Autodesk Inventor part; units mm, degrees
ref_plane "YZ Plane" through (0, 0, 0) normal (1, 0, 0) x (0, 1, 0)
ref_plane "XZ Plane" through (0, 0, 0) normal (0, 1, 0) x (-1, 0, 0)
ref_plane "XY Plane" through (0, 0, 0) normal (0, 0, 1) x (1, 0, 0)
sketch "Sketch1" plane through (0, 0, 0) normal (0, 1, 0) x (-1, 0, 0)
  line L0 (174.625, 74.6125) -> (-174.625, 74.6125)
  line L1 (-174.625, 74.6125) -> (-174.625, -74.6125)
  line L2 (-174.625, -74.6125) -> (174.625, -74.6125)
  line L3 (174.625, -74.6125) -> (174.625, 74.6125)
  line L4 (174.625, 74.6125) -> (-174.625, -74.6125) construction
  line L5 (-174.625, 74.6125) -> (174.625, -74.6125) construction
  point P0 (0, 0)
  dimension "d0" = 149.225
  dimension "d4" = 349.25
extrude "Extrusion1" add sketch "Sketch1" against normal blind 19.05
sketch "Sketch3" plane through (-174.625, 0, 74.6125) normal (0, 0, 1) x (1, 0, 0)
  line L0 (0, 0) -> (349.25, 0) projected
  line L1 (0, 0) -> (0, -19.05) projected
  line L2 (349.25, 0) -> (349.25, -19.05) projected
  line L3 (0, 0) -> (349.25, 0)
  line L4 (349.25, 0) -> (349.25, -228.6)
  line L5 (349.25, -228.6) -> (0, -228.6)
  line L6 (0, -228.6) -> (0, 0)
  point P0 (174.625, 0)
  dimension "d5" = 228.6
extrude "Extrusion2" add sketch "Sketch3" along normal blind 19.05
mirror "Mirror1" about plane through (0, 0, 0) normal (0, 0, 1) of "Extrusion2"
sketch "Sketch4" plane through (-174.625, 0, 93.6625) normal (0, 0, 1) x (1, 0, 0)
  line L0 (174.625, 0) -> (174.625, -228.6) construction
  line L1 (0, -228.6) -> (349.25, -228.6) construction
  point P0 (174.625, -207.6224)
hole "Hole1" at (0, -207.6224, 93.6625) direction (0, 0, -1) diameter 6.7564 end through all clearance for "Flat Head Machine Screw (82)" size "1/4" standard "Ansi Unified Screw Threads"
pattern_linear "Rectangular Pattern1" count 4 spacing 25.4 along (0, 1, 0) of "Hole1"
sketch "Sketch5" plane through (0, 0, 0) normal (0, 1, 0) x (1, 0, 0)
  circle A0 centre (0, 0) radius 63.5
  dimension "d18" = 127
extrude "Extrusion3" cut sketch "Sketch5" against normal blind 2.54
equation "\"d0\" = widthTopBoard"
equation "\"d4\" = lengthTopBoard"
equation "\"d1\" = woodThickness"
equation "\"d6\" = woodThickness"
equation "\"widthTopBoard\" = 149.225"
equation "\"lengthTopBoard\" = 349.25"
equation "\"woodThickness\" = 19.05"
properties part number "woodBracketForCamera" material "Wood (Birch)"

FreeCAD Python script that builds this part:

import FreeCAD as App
import Part
import Sketcher
from FreeCAD import Vector
Q = App.Units.Quantity

doc = App.newDocument("Part")
body = doc.addObject("PartDesign::Body", "Body")

sketch1 = doc.addObject("Sketcher::SketchObject", "Sketch")
body.addObject(sketch1)
sketch1.AttachmentSupport = (doc.XZ_Plane, [""])
sketch1.MapMode = "FlatFace"
sketch1.addGeometry([
    Part.LineSegment(Vector(-174.625, -74.6125, 0), Vector(-174.625, 74.6125, 0)),
    Part.LineSegment(Vector(-174.625, 74.6125, 0), Vector(174.625, 74.6125, 0)),
    Part.LineSegment(Vector(174.625, 74.6125, 0), Vector(174.625, -74.6125, 0)),
    Part.LineSegment(Vector(174.625, -74.6125, 0), Vector(-174.625, -74.6125, 0)),
], False)
sketch1.addConstraint([
    Sketcher.Constraint("Coincident", 0, 2, 1, 1),
    Sketcher.Constraint("Coincident", 1, 2, 2, 1),
    Sketcher.Constraint("Coincident", 2, 2, 3, 1),
    Sketcher.Constraint("Coincident", 3, 2, 0, 1),
    Sketcher.Constraint("Vertical", 0),
    Sketcher.Constraint("Horizontal", 1),
    Sketcher.Constraint("Vertical", 2),
    Sketcher.Constraint("Horizontal", 3),
    Sketcher.Constraint("Symmetric", 0, 2, 2, 2, -1, 1),
    Sketcher.Constraint("DistanceX", 1, 1, 1, 2, Q("13.75 in")),
    Sketcher.Constraint("DistanceY", 0, 1, 0, 2, Q("5.875 in")),
])
pad1 = doc.addObject("PartDesign::Pad", "Pad")
body.addObject(pad1)
pad1.Profile = sketch1
pad1.Length = Q("0.75 in")

sketch2 = doc.addObject("Sketcher::SketchObject", "Sketch001")
body.addObject(sketch2)
sketch2.AttachmentSupport = (doc.XY_Plane, [""])
sketch2.MapMode = "FlatFace"
sketch2.AttachmentOffset = App.Placement(Vector(0, 0, 2.9375 * 25.4), App.Rotation())
sketch2.addGeometry([
    Part.LineSegment(Vector(174.625, 0, 0), Vector(-174.625, 0, 0)),
    Part.LineSegment(Vector(-174.625, 0, 0), Vector(-174.625, -228.6, 0)),
    Part.LineSegment(Vector(-174.625, -228.6, 0), Vector(174.625, -228.6, 0)),
    Part.LineSegment(Vector(174.625, -228.6, 0), Vector(174.625, 0, 0)),
], False)
sketch2.addConstraint([
    Sketcher.Constraint("Coincident", 0, 2, 1, 1),
    Sketcher.Constraint("Coincident", 1, 2, 2, 1),
    Sketcher.Constraint("Coincident", 2, 2, 3, 1),
    Sketcher.Constraint("Coincident", 3, 2, 0, 1),
    Sketcher.Constraint("Horizontal", 0),
    Sketcher.Constraint("Vertical", 1),
    Sketcher.Constraint("Horizontal", 2),
    Sketcher.Constraint("Vertical", 3),
    Sketcher.Constraint("Symmetric", 0, 2, 3, 2, -1, 1),
    Sketcher.Constraint("DistanceY", 1, 2, 1, 1, Q("9 in")),
    Sketcher.Constraint("DistanceX", 0, 2, 0, 1, Q("13.75 in")),
])
pad2 = doc.addObject("PartDesign::Pad", "Pad001")
body.addObject(pad2)
pad2.Profile = sketch2
pad2.Length = Q("0.75 in")
doc.recompute()

mirrored = doc.addObject("PartDesign::Mirrored", "Mirrored")
body.addObject(mirrored)
mirrored.Originals = [pad2]
mirrored.MirrorPlane = (doc.XY_Plane, [""])
body.Tip = mirrored

sketch3 = doc.addObject("Sketcher::SketchObject", "Sketch002")
body.addObject(sketch3)
sketch3.AttachmentSupport = (doc.XY_Plane, [""])
sketch3.MapMode = "FlatFace"
sketch3.AttachmentOffset = App.Placement(Vector(0, 0, 3.6875 * 25.4), App.Rotation())
sketch3.addGeometry(Part.Circle(Vector(0, -207.6224, 0), Vector(0, 0, 1), 3.3782), False)
sketch3.addConstraint([
    Sketcher.Constraint("PointOnObject", 0, 3, -2),
    Sketcher.Constraint("Diameter", 0, Q("0.266 in")),
    Sketcher.Constraint("DistanceY", 0, 3, -1, 1, Q("8.1741 in")),
])
doc.recompute()
hole = doc.addObject("PartDesign::Hole", "Hole")
body.addObject(hole)
hole.Profile = sketch3
hole.ThreadType = "None"
hole.Diameter = Q("0.266 in")
hole.DepthType = "ThroughAll"
doc.recompute()

linearpattern = doc.addObject("PartDesign::LinearPattern", "LinearPattern")
body.addObject(linearpattern)
linearpattern.Originals = [hole]
linearpattern.Direction = (doc.Y_Axis, [""])
linearpattern.Mode = "offset"
linearpattern.Offset = Q("1 in")
linearpattern.Occurrences = 4
body.Tip = linearpattern

sketch4 = doc.addObject("Sketcher::SketchObject", "Sketch003")
body.addObject(sketch4)
sketch4.AttachmentSupport = (doc.XZ_Plane, [""])
sketch4.MapMode = "FlatFace"
sketch4.addGeometry(Part.Circle(Vector(0, 0, 0), Vector(0, 0, 1), 63.5), False)
sketch4.addConstraint([
    Sketcher.Constraint("Coincident", 0, 3, -1, 1),
    Sketcher.Constraint("Diameter", 0, Q("5 in")),
])
pocket1 = doc.addObject("PartDesign::Pocket", "Pocket")
body.addObject(pocket1)
pocket1.Profile = sketch4
pocket1.Length = Q("0.1 in")
pocket1.Reversed = True

doc.recompute()
